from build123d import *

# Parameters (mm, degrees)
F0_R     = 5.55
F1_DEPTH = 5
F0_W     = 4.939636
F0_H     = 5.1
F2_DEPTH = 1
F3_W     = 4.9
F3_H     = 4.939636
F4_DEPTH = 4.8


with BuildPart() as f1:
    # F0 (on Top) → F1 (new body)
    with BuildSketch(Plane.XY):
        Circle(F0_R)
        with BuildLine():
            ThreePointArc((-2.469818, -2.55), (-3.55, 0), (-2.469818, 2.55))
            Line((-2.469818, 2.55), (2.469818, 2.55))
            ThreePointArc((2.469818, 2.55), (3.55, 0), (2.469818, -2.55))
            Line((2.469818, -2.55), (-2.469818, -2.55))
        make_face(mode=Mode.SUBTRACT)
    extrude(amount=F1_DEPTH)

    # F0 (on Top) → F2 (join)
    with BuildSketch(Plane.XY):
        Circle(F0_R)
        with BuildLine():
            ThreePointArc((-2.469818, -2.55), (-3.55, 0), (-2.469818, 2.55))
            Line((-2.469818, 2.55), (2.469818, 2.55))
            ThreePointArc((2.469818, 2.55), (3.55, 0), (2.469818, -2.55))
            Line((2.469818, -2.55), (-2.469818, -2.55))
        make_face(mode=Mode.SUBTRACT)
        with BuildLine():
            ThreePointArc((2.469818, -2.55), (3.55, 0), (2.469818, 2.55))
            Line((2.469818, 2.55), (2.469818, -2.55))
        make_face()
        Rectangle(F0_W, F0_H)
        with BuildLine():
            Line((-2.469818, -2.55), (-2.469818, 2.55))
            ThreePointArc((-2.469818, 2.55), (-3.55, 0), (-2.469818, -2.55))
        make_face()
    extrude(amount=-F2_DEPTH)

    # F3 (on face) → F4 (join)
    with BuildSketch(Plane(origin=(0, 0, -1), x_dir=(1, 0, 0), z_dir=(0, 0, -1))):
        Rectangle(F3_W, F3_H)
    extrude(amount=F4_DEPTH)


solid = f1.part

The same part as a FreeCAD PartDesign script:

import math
import FreeCAD as App
import Part
import Sketcher

V = App.Vector

doc = App.newDocument("Part")
body = doc.addObject("PartDesign::Body", "Body")

# Sketch on XY plane
sketch1 = doc.addObject("Sketcher::SketchObject", "Sketch")
body.addObject(sketch1)
sketch1.AttachmentSupport = (doc.XY_Plane, [""])
sketch1.MapMode = "FlatFace"
sketch1.addGeometry([
    Part.Circle(V(0, 0, 0), V(0, 0, 1), 5.5),  # 0
    Part.LineSegment(V(2.5, -2.5, 0), V(-2.5, -2.5, 0)),  # 1
    Part.ArcOfCircle(Part.Circle(V(0, 0, 0), V(0, 0, 1), 3.6), math.radians(134), math.radians(226)),  # 2
    Part.LineSegment(V(-2.5, 2.5, 0), V(2.5, 2.5, 0)),  # 3
    Part.ArcOfCircle(Part.Circle(V(0, 0, 0), V(0, 0, 1), 3.6), math.radians(-46), math.radians(46)),  # 4
], False)
sketch1.addConstraint([
    Sketcher.Constraint("Coincident", 1, 2, 2, 2),
    Sketcher.Constraint("Coincident", 2, 1, 3, 1),
    Sketcher.Constraint("Coincident", 3, 2, 4, 2),
    Sketcher.Constraint("Coincident", 4, 1, 1, 1),
    Sketcher.Constraint("Horizontal", 1),
    Sketcher.Constraint("Horizontal", 3),
    Sketcher.Constraint("Coincident", 0, 3, -1, 1),
    Sketcher.Constraint("Coincident", 2, 3, -1, 1),
    Sketcher.Constraint("Coincident", 4, 3, -1, 1),
    Sketcher.Constraint("Equal", 2, 4),
    Sketcher.Constraint("Vertical", 1, 2, 2, 1),
    Sketcher.Constraint("Diameter", 0, 11.1),
    Sketcher.Constraint("Radius", 2, 3.55),
    Sketcher.Constraint("DistanceY", 1, 2, 2, 1, 5.1),
])
pad1 = doc.addObject("PartDesign::Pad", "Pad")
body.addObject(pad1)
pad1.Profile = sketch1
pad1.Length = 5

# Sketch on XY plane
sketch2 = doc.addObject("Sketcher::SketchObject", "Sketch001")
body.addObject(sketch2)
sketch2.AttachmentSupport = (doc.XY_Plane, [""])
sketch2.MapMode = "FlatFace"
sketch2.addGeometry(Part.Circle(V(0, 0, 0), V(0, 0, 1), 6), False)
sketch2.addConstraint([
    Sketcher.Constraint("Coincident", 0, 3, -1, 1),
    Sketcher.Constraint("Diameter", 0, 11.1),
])
pad2 = doc.addObject("PartDesign::Pad", "Pad001")
body.addObject(pad2)
pad2.Profile = sketch2
pad2.Length = 1
pad2.Reversed = True

# Sketch on XY plane
sketch3 = doc.addObject("Sketcher::SketchObject", "Sketch002")
body.addObject(sketch3)
sketch3.AttachmentSupport = (doc.XY_Plane, [""])
sketch3.MapMode = "FlatFace"
sketch3.AttachmentOffset = App.Placement(V(0, 0, -1), App.Rotation())
sketch3.addGeometry([
    Part.LineSegment(V(-2.5, -2.5, 0), V(-2.5, 2.5, 0)),
    Part.LineSegment(V(-2.5, 2.5, 0), V(2.5, 2.5, 0)),
    Part.LineSegment(V(2.5, 2.5, 0), V(2.5, -2.5, 0)),
    Part.LineSegment(V(2.5, -2.5, 0), V(-2.5, -2.5, 0)),
], False)
sketch3.addConstraint([
    Sketcher.Constraint("Coincident", 0, 2, 1, 1),
    Sketcher.Constraint("Coincident", 1, 2, 2, 1),
    Sketcher.Constraint("Coincident", 2, 2, 3, 1),
    Sketcher.Constraint("Coincident", 3, 2, 0, 1),
    Sketcher.Constraint("Vertical", 0),
    Sketcher.Constraint("Horizontal", 1),
    Sketcher.Constraint("Vertical", 2),
    Sketcher.Constraint("Horizontal", 3),
    Sketcher.Constraint("Symmetric", 0, 2, 2, 2, -1, 1),
    Sketcher.Constraint("DistanceX", 1, 1, 1, 2, 4.9),
    Sketcher.Constraint("DistanceY", 0, 1, 0, 2, 4.939636),
])
pad3 = doc.addObject("PartDesign::Pad", "Pad002")
body.addObject(pad3)
pad3.Profile = sketch3
pad3.Length = 4.8
pad3.Reversed = True

doc.recompute()
